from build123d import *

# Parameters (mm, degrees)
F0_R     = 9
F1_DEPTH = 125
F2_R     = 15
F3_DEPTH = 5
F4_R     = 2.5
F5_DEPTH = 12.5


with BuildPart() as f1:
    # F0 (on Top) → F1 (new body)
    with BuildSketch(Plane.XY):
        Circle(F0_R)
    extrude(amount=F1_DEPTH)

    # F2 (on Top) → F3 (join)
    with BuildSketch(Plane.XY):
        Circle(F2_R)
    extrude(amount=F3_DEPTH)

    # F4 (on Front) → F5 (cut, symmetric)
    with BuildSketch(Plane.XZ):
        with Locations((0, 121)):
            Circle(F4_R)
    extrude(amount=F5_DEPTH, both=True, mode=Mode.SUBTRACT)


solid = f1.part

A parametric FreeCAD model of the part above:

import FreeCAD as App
import Part
import Sketcher

doc = App.newDocument("Part")
body = doc.addObject("PartDesign::Body", "Body")

# Sketch on XY plane
sketch1 = doc.addObject("Sketcher::SketchObject", "Sketch")
body.addObject(sketch1)
sketch1.AttachmentSupport = (doc.XY_Plane, [""])
sketch1.MapMode = "FlatFace"
sketch1.addGeometry(Part.Circle(App.Vector(0, 0, 0), App.Vector(0, 0, 1), 9), False)
sketch1.addConstraint(Sketcher.Constraint("Coincident", 0, 3, -1, 1))
sketch1.addConstraint(Sketcher.Constraint("Diameter", 0, 18.0))
pad1 = doc.addObject("PartDesign::Pad", "Pad")
body.addObject(pad1)
pad1.Profile = sketch1
pad1.Length = 125

# Sketch on XY plane
sketch2 = doc.addObject("Sketcher::SketchObject", "Sketch001")
body.addObject(sketch2)
sketch2.AttachmentSupport = (doc.XY_Plane, [""])
sketch2.MapMode = "FlatFace"
sketch2.addGeometry(Part.Circle(App.Vector(0, 0, 0), App.Vector(0, 0, 1), 15), False)
sketch2.addConstraint(Sketcher.Constraint("Coincident", 0, 3, -1, 1))
sketch2.addConstraint(Sketcher.Constraint("Diameter", 0, 30.0))
pad2 = doc.addObject("PartDesign::Pad", "Pad001")
body.addObject(pad2)
pad2.Profile = sketch2
pad2.Length = 5

# Sketch on XZ plane
sketch3 = doc.addObject("Sketcher::SketchObject", "Sketch002")
body.addObject(sketch3)
sketch3.AttachmentSupport = (doc.XZ_Plane, [""])
sketch3.MapMode = "FlatFace"
sketch3.addGeometry(Part.Circle(App.Vector(0, 121, 0), App.Vector(0, 0, 1), 2.5), False)
sketch3.addConstraint(Sketcher.Constraint("PointOnObject", 0, 3, -2))
sketch3.addConstraint(Sketcher.Constraint("Diameter", 0, 5.0))
sketch3.addConstraint(Sketcher.Constraint("DistanceY", -1, 1, 0, 3, 121.0))
pocket1 = doc.addObject("PartDesign::Pocket", "Pocket")
body.addObject(pocket1)
pocket1.Profile = sketch3
pocket1.Length = 25
pocket1.Midplane = True

doc.recompute()
